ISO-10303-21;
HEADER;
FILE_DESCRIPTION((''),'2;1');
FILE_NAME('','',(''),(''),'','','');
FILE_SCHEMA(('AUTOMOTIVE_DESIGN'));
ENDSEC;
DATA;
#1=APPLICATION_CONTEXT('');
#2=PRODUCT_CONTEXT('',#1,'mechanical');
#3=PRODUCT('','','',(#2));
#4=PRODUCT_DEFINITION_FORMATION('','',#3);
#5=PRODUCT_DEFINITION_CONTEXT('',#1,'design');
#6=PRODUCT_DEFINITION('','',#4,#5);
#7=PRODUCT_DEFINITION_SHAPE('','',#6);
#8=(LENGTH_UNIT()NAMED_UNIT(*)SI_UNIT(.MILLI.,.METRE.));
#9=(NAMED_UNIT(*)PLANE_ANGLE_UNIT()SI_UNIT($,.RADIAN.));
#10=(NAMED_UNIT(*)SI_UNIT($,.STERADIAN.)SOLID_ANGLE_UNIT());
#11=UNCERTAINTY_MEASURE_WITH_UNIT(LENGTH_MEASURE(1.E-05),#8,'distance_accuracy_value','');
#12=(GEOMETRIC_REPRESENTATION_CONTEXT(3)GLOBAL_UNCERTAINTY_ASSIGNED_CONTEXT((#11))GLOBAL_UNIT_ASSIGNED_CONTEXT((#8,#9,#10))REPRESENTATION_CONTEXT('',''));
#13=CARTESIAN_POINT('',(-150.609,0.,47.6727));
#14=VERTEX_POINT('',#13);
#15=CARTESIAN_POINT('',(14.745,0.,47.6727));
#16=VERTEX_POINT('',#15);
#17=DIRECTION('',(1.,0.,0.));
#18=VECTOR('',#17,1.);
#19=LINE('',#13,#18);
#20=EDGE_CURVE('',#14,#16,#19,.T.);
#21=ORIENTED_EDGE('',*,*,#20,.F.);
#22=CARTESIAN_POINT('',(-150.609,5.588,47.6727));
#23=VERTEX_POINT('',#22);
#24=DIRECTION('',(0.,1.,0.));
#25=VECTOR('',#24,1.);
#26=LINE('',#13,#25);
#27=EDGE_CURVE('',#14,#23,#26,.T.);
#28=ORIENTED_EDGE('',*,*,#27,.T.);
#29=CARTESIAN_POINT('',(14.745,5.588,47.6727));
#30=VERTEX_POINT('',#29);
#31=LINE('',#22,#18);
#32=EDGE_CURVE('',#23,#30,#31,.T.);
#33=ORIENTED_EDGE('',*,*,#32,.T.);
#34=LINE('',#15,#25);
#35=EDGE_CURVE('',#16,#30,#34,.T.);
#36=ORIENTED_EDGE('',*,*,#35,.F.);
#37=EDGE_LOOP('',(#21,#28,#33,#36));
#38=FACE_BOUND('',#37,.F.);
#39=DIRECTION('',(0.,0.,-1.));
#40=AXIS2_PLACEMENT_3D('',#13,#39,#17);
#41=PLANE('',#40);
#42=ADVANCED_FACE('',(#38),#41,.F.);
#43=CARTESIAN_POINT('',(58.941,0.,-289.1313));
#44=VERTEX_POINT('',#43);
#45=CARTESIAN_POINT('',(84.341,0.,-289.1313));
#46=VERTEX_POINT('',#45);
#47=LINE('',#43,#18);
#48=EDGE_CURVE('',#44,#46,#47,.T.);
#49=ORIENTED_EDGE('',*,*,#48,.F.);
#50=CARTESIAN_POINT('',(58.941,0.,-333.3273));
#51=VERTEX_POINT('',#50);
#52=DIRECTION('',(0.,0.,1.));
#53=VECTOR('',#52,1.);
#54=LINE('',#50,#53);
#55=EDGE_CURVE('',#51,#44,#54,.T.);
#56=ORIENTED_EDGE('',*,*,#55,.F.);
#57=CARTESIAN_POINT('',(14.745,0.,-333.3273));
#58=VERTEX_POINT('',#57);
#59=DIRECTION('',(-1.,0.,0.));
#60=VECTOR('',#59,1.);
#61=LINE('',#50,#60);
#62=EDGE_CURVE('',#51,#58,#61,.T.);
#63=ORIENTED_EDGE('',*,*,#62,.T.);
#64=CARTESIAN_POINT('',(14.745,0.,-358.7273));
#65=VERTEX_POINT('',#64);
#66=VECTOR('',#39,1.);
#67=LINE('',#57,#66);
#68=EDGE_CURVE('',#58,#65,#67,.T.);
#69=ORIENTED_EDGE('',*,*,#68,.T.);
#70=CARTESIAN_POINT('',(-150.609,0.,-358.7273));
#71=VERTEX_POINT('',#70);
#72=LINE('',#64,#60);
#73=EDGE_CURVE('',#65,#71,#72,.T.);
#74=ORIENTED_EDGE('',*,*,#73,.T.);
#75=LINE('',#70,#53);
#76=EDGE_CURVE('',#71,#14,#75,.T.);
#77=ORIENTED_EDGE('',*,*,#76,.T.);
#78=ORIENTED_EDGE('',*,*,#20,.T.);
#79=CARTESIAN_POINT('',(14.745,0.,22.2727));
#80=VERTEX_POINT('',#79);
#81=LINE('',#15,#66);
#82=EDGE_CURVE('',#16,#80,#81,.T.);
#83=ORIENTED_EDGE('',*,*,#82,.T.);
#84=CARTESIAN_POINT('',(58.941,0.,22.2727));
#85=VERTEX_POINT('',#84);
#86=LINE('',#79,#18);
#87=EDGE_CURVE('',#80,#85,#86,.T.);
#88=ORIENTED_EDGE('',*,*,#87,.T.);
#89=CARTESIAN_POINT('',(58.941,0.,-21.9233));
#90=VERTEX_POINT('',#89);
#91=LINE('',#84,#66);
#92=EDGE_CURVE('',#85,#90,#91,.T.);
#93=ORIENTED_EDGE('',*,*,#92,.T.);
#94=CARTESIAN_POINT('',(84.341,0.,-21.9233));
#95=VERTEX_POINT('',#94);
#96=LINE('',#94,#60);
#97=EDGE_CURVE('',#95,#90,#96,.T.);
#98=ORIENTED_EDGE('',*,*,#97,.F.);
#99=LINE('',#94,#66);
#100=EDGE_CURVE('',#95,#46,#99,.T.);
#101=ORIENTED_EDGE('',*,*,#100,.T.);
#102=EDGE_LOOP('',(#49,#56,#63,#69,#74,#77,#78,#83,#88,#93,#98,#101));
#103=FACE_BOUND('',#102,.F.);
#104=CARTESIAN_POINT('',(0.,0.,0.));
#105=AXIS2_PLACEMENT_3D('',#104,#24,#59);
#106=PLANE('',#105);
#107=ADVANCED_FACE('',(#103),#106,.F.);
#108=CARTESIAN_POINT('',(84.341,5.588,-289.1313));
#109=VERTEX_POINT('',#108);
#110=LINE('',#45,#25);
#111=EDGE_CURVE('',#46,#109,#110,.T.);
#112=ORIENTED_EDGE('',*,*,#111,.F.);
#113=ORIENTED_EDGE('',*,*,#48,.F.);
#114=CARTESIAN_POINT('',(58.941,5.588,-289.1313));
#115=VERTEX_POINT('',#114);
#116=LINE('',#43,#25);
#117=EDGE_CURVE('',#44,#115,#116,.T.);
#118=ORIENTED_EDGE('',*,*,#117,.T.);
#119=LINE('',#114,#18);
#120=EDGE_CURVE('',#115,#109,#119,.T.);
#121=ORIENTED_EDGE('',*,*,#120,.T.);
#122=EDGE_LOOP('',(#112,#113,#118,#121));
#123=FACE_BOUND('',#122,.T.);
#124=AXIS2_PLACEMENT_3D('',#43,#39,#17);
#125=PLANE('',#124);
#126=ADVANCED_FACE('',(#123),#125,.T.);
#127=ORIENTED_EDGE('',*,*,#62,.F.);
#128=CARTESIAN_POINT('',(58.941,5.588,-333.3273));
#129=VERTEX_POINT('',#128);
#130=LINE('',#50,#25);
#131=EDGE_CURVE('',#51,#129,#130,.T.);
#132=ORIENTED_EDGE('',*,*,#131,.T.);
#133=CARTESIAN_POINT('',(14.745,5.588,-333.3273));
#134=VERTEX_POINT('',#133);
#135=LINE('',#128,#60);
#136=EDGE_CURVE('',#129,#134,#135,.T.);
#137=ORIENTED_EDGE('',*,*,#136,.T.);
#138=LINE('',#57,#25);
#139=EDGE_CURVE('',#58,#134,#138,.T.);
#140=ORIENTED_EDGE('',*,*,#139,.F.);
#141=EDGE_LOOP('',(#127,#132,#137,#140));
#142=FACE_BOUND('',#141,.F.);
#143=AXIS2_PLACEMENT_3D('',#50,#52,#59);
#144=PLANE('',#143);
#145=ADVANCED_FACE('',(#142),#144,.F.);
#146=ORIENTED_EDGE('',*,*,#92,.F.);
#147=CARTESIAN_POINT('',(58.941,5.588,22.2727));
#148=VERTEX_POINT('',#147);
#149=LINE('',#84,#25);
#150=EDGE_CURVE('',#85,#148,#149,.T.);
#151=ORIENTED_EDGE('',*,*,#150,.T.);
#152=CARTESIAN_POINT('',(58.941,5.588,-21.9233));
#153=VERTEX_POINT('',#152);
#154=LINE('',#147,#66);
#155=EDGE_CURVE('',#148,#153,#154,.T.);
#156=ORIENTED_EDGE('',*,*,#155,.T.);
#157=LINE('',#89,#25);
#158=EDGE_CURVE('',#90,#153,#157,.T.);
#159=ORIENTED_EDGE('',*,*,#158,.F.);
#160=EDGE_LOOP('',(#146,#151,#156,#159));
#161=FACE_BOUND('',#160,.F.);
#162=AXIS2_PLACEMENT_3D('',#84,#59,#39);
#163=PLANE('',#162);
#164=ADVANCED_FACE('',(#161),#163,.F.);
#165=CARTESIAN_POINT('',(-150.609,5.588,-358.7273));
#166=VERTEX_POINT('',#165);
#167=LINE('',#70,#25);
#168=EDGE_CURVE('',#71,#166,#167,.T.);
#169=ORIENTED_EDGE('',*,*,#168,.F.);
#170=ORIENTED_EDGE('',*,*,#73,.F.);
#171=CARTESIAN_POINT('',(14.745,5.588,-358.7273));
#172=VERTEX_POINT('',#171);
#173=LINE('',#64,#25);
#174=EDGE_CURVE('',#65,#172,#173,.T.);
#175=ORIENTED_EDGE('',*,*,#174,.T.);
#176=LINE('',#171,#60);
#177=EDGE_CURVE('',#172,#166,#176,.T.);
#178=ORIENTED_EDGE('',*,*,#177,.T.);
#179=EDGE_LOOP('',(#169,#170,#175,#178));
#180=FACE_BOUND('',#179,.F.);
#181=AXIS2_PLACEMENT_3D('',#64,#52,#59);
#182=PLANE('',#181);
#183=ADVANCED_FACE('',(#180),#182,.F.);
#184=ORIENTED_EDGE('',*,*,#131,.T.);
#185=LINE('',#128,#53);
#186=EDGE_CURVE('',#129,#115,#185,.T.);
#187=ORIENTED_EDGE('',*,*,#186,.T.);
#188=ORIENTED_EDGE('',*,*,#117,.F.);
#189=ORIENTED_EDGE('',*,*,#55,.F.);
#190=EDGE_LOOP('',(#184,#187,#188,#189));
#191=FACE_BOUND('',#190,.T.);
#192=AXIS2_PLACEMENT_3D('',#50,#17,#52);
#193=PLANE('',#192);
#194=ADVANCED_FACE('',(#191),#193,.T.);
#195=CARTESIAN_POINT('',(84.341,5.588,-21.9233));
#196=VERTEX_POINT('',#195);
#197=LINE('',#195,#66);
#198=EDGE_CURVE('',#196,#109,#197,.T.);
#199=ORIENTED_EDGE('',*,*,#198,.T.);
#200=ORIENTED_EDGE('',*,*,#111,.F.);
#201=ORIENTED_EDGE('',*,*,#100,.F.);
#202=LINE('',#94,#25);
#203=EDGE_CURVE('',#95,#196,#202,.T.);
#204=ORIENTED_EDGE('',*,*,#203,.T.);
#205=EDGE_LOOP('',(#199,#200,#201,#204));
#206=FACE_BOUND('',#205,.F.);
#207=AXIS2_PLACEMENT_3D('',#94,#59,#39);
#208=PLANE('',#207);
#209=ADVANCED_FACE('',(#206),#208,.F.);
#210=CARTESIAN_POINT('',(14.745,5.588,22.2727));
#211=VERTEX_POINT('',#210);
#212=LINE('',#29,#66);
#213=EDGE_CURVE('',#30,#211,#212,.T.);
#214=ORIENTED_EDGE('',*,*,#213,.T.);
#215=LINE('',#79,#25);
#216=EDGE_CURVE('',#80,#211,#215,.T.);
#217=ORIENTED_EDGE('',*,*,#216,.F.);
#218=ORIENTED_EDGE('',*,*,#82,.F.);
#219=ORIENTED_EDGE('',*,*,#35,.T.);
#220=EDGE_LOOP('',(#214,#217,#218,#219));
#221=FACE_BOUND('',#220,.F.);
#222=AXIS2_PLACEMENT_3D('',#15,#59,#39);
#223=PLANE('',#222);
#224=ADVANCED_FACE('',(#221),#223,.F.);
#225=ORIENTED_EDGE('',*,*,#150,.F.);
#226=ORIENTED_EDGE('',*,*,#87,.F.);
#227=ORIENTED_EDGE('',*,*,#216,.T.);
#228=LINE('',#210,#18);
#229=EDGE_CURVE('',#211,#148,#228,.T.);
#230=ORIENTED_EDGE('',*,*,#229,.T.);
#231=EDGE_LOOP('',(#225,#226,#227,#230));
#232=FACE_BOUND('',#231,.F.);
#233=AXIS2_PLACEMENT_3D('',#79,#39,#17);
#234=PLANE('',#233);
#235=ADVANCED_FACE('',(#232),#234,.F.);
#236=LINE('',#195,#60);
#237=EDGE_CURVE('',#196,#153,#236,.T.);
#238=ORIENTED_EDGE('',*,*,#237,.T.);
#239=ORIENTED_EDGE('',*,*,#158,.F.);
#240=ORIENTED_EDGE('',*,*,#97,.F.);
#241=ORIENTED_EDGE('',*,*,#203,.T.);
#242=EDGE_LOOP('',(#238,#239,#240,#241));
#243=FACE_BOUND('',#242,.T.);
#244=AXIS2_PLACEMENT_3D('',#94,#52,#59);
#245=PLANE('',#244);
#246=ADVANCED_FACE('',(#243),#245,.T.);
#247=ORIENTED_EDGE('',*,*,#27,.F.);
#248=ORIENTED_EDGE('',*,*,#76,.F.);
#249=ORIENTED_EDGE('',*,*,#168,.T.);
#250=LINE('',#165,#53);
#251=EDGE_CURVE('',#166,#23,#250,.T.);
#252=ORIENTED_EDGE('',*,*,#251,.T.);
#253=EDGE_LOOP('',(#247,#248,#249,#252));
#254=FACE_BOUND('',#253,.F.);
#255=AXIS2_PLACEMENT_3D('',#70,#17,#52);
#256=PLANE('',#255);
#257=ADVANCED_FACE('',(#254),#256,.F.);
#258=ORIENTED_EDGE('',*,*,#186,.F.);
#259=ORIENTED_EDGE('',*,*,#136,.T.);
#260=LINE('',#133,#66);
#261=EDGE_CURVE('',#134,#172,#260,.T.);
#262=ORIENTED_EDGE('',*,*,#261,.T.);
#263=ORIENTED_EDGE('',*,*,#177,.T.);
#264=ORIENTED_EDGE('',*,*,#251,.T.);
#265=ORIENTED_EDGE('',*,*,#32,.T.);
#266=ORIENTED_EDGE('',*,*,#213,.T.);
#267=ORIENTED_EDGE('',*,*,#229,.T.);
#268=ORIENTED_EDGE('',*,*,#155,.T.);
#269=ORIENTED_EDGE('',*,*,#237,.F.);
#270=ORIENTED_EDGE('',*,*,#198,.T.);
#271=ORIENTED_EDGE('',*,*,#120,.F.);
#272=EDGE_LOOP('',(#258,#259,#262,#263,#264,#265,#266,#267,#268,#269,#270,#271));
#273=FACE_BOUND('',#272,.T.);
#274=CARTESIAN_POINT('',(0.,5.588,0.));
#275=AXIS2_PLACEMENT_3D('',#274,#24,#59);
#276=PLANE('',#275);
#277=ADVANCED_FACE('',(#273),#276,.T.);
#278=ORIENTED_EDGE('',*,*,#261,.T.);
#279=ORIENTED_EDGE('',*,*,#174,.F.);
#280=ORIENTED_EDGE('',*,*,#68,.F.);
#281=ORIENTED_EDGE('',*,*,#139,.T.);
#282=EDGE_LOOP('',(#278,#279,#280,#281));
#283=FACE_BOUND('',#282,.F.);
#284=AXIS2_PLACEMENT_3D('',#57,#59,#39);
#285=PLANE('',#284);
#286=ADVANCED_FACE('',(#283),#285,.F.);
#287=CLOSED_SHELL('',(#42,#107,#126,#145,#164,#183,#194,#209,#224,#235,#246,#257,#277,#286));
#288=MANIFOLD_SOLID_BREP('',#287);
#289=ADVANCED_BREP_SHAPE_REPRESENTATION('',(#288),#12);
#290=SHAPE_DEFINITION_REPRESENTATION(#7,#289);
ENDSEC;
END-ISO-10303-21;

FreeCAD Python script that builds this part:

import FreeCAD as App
import Part
import Sketcher
Q = App.Units.Quantity

doc = App.newDocument("Part")
params = doc.addObject("Spreadsheet::Sheet", "Params")
for row, (alias, value) in enumerate([
    ("sketch1_width", "1 in"),
    ("sketch1_height", "16 in"),
    ("pad1_length", "0.22 in"),
], start=1):
    params.set(f"A{row}", alias)
    params.set(f"B{row}", "=" + value)
    params.setAlias(f"B{row}", alias)

body = doc.addObject("PartDesign::Body", "Body")

# Sketch on XZ plane
sketch1 = doc.addObject("Sketcher::SketchObject", "Sketch")
body.addObject(sketch1)
sketch1.AttachmentSupport = (doc.XZ_Plane, [""])
sketch1.MapMode = "FlatFace"
sketch1.addGeometry(Part.LineSegment(App.Vector(-150.609, -358.7273, 0), App.Vector(-150.609, 47.6727, 0)), False)
sketch1.addGeometry(Part.LineSegment(App.Vector(-150.609, 47.6727, 0), App.Vector(14.745, 47.6727, 0)), False)
sketch1.addGeometry(Part.LineSegment(App.Vector(14.745, 47.6727, 0), App.Vector(14.745, 22.2727, 0)), False)
sketch1.addGeometry(Part.LineSegment(App.Vector(14.745, 22.2727, 0), App.Vector(58.941, 22.2727, 0)), False)
sketch1.addGeometry(Part.LineSegment(App.Vector(58.941, 22.2727, 0), App.Vector(58.941, -21.9233, 0)), False)
sketch1.addGeometry(Part.LineSegment(App.Vector(58.941, -21.9233, 0), App.Vector(84.341, -21.9233, 0)), False)
sketch1.addGeometry(Part.LineSegment(App.Vector(84.341, -21.9233, 0), App.Vector(84.341, -289.1313, 0)), False)
sketch1.addGeometry(Part.LineSegment(App.Vector(84.341, -289.1313, 0), App.Vector(58.941, -289.1313, 0)), False)
sketch1.addGeometry(Part.LineSegment(App.Vector(58.941, -289.1313, 0), App.Vector(58.941, -333.3273, 0)), False)
sketch1.addGeometry(Part.LineSegment(App.Vector(58.941, -333.3273, 0), App.Vector(14.745, -333.3273, 0)), False)
sketch1.addGeometry(Part.LineSegment(App.Vector(14.745, -333.3273, 0), App.Vector(14.745, -358.7273, 0)), False)
sketch1.addGeometry(Part.LineSegment(App.Vector(14.745, -358.7273, 0), App.Vector(-150.609, -358.7273, 0)), False)
sketch1.addConstraint(Sketcher.Constraint("Coincident", 0, 2, 1, 1))
sketch1.addConstraint(Sketcher.Constraint("Coincident", 1, 2, 2, 1))
sketch1.addConstraint(Sketcher.Constraint("Coincident", 2, 2, 3, 1))
sketch1.addConstraint(Sketcher.Constraint("Coincident", 3, 2, 4, 1))
sketch1.addConstraint(Sketcher.Constraint("Coincident", 4, 2, 5, 1))
sketch1.addConstraint(Sketcher.Constraint("Coincident", 5, 2, 6, 1))
sketch1.addConstraint(Sketcher.Constraint("Coincident", 6, 2, 7, 1))
sketch1.addConstraint(Sketcher.Constraint("Coincident", 7, 2, 8, 1))
sketch1.addConstraint(Sketcher.Constraint("Coincident", 8, 2, 9, 1))
sketch1.addConstraint(Sketcher.Constraint("Coincident", 9, 2, 10, 1))
sketch1.addConstraint(Sketcher.Constraint("Coincident", 10, 2, 11, 1))
sketch1.addConstraint(Sketcher.Constraint("Coincident", 11, 2, 0, 1))
sketch1.addConstraint(Sketcher.Constraint("Vertical", 0))
sketch1.addConstraint(Sketcher.Constraint("Horizontal", 1))
sketch1.addConstraint(Sketcher.Constraint("Vertical", 2))
sketch1.addConstraint(Sketcher.Constraint("Horizontal", 3))
sketch1.addConstraint(Sketcher.Constraint("Vertical", 4))
sketch1.addConstraint(Sketcher.Constraint("Horizontal", 5))
sketch1.addConstraint(Sketcher.Constraint("Vertical", 6))
sketch1.addConstraint(Sketcher.Constraint("Horizontal", 7))
sketch1.addConstraint(Sketcher.Constraint("Vertical", 8))
sketch1.addConstraint(Sketcher.Constraint("Horizontal", 9))
sketch1.addConstraint(Sketcher.Constraint("Vertical", 10))
sketch1.addConstraint(Sketcher.Constraint("Horizontal", 11))
sketch1.addConstraint(Sketcher.Constraint("Vertical", 4, 2, 7, 2))
sketch1.addConstraint(Sketcher.Constraint("Vertical", 2, 2, 9, 2))
sketch1.addConstraint(Sketcher.Constraint("Equal", 7, 2))
sketch1.addConstraint(Sketcher.Constraint("Equal", 9, 4))
sketch1.addConstraint(Sketcher.Constraint("Equal", 4, 8))
sketch1.addConstraint(Sketcher.Constraint("Equal", 2, 10))
sketch1.addConstraint(Sketcher.Constraint("DistanceX", 5, 1, 5, 2, Q("1 in")))
sketch1.addConstraint(Sketcher.Constraint("DistanceY", 0, 1, 0, 2, Q("16 in")))
sketch1.addConstraint(Sketcher.Constraint("DistanceY", 4, 2, 1, 2, Q("2.74 in")))
sketch1.addConstraint(Sketcher.Constraint("DistanceX", 0, 2, 5, 2, Q("9.25 in")))
sketch1.addConstraint(Sketcher.Constraint("DistanceX", 0, 2, -1, 1, Q("5.9295 in")))
sketch1.addConstraint(Sketcher.Constraint("DistanceY", -1, 1, 0, 2, 47.6727))
sketch1.setExpression("Constraints[30]", "Params.sketch1_width")
sketch1.setExpression("Constraints[31]", "Params.sketch1_height")
pad1 = doc.addObject("PartDesign::Pad", "Pad")
body.addObject(pad1)
pad1.Profile = sketch1
pad1.setExpression("Length", "Params.pad1_length")
pad1.Reversed = True

doc.recompute()
